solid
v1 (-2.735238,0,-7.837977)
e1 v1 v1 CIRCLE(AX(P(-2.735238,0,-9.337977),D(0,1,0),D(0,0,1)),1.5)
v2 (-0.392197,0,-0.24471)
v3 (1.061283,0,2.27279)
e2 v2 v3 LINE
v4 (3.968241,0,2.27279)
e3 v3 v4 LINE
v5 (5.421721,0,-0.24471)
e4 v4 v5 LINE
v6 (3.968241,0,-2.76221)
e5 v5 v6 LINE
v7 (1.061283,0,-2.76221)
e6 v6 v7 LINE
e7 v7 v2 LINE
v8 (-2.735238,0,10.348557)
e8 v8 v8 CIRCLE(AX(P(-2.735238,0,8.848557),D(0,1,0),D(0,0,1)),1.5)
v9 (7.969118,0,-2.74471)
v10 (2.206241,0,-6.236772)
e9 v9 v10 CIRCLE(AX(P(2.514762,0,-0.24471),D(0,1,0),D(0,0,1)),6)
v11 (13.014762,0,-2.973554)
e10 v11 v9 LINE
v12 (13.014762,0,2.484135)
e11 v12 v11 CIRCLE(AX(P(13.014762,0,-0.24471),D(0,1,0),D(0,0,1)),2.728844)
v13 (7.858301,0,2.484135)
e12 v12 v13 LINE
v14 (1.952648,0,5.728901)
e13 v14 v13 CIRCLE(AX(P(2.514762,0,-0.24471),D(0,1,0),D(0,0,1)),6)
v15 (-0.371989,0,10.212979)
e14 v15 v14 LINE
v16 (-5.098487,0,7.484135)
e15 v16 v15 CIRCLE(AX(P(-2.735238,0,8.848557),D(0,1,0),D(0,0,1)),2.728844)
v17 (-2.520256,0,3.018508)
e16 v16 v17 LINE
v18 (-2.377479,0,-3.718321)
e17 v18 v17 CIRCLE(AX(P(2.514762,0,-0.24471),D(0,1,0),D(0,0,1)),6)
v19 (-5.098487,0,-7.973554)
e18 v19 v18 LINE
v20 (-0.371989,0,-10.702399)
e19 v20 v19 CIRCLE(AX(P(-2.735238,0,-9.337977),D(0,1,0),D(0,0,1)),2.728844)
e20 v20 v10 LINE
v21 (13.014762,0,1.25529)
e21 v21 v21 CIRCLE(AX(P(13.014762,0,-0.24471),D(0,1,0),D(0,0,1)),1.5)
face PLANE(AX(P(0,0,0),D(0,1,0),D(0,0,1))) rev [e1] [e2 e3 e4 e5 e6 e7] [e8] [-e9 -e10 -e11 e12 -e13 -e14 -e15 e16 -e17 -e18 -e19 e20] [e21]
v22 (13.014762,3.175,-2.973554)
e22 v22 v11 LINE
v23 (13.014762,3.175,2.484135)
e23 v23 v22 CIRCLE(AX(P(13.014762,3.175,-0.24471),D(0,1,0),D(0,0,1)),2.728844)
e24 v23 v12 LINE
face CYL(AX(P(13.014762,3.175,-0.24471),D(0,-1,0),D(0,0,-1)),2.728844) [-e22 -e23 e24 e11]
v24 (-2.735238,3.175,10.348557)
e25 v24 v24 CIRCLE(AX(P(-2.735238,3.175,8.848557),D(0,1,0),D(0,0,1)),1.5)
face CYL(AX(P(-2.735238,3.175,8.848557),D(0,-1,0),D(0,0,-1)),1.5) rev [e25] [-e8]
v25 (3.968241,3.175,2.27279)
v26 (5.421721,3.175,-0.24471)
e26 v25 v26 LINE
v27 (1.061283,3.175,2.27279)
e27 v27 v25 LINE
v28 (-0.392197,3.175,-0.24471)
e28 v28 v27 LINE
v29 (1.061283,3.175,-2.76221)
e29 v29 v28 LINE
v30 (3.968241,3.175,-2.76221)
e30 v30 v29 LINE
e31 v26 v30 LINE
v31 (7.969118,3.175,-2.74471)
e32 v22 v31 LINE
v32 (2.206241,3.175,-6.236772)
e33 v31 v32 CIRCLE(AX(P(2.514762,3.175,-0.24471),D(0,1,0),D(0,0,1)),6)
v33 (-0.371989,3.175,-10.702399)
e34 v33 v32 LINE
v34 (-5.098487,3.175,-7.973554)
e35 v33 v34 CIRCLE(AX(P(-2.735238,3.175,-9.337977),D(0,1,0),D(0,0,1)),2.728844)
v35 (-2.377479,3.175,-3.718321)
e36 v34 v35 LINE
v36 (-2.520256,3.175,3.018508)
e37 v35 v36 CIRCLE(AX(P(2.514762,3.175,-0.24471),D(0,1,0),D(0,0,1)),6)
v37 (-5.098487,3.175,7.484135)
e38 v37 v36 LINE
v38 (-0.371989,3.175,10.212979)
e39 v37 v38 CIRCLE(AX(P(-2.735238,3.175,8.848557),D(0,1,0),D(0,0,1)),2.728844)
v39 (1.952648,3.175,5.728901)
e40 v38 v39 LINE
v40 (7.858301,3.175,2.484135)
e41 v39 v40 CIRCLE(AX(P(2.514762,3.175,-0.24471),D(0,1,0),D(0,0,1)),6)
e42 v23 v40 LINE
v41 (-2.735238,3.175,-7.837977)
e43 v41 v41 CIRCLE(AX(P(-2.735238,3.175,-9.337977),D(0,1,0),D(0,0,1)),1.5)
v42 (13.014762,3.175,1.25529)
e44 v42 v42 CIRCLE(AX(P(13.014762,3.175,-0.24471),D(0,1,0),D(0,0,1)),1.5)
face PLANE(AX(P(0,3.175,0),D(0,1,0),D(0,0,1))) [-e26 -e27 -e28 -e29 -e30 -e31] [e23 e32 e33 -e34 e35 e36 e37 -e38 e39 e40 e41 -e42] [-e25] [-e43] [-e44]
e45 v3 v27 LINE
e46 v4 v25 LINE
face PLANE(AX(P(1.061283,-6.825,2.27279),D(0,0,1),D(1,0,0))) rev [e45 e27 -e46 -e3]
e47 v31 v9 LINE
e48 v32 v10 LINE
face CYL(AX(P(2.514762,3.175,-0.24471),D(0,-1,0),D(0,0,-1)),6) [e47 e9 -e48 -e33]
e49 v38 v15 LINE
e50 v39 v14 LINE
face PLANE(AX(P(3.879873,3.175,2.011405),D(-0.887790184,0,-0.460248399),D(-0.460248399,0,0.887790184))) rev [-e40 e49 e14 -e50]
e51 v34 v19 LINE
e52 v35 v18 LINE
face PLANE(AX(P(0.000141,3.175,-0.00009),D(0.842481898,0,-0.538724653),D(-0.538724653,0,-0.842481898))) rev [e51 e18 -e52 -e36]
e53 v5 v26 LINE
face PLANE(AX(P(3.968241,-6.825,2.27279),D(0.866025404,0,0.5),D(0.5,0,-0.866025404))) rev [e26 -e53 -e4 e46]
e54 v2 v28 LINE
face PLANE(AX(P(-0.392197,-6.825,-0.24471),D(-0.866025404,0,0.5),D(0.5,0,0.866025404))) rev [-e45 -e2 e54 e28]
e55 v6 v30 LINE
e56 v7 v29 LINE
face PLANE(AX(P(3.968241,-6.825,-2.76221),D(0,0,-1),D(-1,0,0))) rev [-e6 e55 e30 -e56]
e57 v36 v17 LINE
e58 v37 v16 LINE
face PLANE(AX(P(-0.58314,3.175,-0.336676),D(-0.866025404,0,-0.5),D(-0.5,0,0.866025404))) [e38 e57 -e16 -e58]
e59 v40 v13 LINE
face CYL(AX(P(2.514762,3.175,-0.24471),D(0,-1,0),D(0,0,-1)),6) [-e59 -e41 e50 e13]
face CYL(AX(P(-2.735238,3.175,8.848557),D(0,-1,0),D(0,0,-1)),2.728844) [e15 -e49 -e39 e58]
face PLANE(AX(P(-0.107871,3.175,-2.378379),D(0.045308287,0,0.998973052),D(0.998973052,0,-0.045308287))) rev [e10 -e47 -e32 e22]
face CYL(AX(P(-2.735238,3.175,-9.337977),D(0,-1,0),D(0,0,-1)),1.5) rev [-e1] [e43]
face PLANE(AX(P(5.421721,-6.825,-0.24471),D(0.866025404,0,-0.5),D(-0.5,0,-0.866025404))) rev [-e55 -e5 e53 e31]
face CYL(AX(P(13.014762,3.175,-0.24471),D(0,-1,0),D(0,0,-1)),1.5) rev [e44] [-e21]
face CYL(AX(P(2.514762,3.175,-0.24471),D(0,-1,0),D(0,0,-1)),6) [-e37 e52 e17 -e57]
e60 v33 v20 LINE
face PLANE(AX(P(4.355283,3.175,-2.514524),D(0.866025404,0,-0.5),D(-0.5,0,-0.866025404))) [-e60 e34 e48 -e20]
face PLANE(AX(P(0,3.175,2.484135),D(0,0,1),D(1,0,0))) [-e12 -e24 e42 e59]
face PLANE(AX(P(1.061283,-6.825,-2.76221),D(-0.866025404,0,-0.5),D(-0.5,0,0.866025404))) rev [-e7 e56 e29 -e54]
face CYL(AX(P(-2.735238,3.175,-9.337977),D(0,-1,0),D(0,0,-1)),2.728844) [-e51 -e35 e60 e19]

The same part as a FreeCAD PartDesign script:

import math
import FreeCAD as App
import Part
import Sketcher

V = App.Vector
Q = App.Units.Quantity


def add_polygon(sketch, points):
    """Adds a closed chain of lines whose ends are joined by coincident constraints."""
    first, n = sketch.GeometryCount, len(points)
    for a, b in zip(points, points[1:] + points[:1]):
        sketch.addGeometry(Part.LineSegment(App.Vector(*a, 0), App.Vector(*b, 0)), False)
    for i in range(n):
        sketch.addConstraint(Sketcher.Constraint("Coincident", first + i, 2, first + (i + 1) % n, 1))

doc = App.newDocument("Part")
body = doc.addObject("PartDesign::Body", "Body")

sketch1 = body.newObject("Sketcher::SketchObject", "Sketch")
sketch1.AttachmentSupport = (doc.getObject("XZ_Plane"), [""])
sketch1.MapMode = "FlatFace"
sketch1.addGeometry(Part.LineSegment(V(7.9, 2.5, 0), V(13, 2.5, 0)), False)
sketch1.addGeometry(Part.ArcOfCircle(Part.Circle(V(13, -0.2, 0), V(0, 0, 1), 2.7), math.radians(-90), math.radians(90)), False)
sketch1.addGeometry(Part.LineSegment(V(13, -3, 0), V(8, -2.7, 0)), False)
sketch1.addGeometry(Part.ArcOfCircle(Part.Circle(V(2.5, -0.2, 0), V(0, 0, 1), 6), math.radians(-93), math.radians(-25)), False)
sketch1.addGeometry(Part.LineSegment(V(2.2, -6.2, 0), V(-0.4, -10.7, 0)), False)
sketch1.addGeometry(Part.ArcOfCircle(Part.Circle(V(-2.7, -9.3, 0), V(0, 0, 1), 2.7), math.radians(150), math.radians(330)), False)
sketch1.addGeometry(Part.LineSegment(V(-5.1, -8, 0), V(-2.4, -3.7, 0)), False)
sketch1.addGeometry(Part.ArcOfCircle(Part.Circle(V(2.5, -0.2, 0), V(0, 0, 1), 6), math.radians(147), math.radians(215)), False)
sketch1.addGeometry(Part.LineSegment(V(-2.5, 3, 0), V(-5.1, 7.5, 0)), False)
sketch1.addGeometry(Part.ArcOfCircle(Part.Circle(V(-2.7, 8.8, 0), V(0, 0, 1), 2.7), math.radians(30), math.radians(210)), False)
sketch1.addGeometry(Part.LineSegment(V(-0.4, 10.2, 0), V(2, 5.7, 0)), False)
sketch1.addGeometry(Part.ArcOfCircle(Part.Circle(V(2.5, -0.2, 0), V(0, 0, 1), 6), math.radians(27), math.radians(95)), False)
sketch1.addGeometry(Part.Circle(V(-2.7, 8.8, 0), V(0, 0, 1), 1.5), False)
add_polygon(sketch1, [(1.1, -2.8), (4, -2.8), (5.4, -0.2), (4, 2.3), (1.1, 2.3), (-0.4, -0.2)])
sketch1.addGeometry(Part.Circle(V(-2.7, -9.3, 0), V(0, 0, 1), 1.5), False)
sketch1.addGeometry(Part.Circle(V(13, -0.2, 0), V(0, 0, 1), 1.5), False)
sketch1.addConstraint(Sketcher.Constraint("Tangent", 0, 2, 1, 2))
sketch1.addConstraint(Sketcher.Constraint("Coincident", 1, 1, 2, 1))
sketch1.addConstraint(Sketcher.Constraint("Coincident", 2, 2, 3, 2))
sketch1.addConstraint(Sketcher.Constraint("Coincident", 3, 1, 4, 1))
sketch1.addConstraint(Sketcher.Constraint("Tangent", 4, 2, 5, 2))
sketch1.addConstraint(Sketcher.Constraint("Coincident", 5, 1, 6, 1))
sketch1.addConstraint(Sketcher.Constraint("Coincident", 6, 2, 7, 2))
sketch1.addConstraint(Sketcher.Constraint("Coincident", 7, 1, 8, 1))
sketch1.addConstraint(Sketcher.Constraint("Tangent", 8, 2, 9, 2))
sketch1.addConstraint(Sketcher.Constraint("Coincident", 9, 1, 10, 1))
sketch1.addConstraint(Sketcher.Constraint("Coincident", 10, 2, 11, 2))
sketch1.addConstraint(Sketcher.Constraint("Coincident", 11, 1, 0, 1))
sketch1.addConstraint(Sketcher.Constraint("Horizontal", 0))
sketch1.addConstraint(Sketcher.Constraint("Horizontal", 13))
sketch1.addConstraint(Sketcher.Constraint("Horizontal", 16))
sketch1.addConstraint(Sketcher.Constraint("Coincident", 7, 3, 3, 3))
sketch1.addConstraint(Sketcher.Constraint("Coincident", 11, 3, 3, 3))
sketch1.addConstraint(Sketcher.Constraint("Coincident", 12, 3, 9, 3))
sketch1.addConstraint(Sketcher.Constraint("Coincident", 19, 3, 5, 3))
sketch1.addConstraint(Sketcher.Constraint("Coincident", 20, 3, 1, 3))
sketch1.addConstraint(Sketcher.Constraint("Equal", 1, 5))
sketch1.addConstraint(Sketcher.Constraint("Equal", 3, 7))
sketch1.addConstraint(Sketcher.Constraint("Equal", 5, 9))
sketch1.addConstraint(Sketcher.Constraint("Equal", 7, 11))
sketch1.addConstraint(Sketcher.Constraint("Equal", 12, 19))
sketch1.addConstraint(Sketcher.Constraint("Equal", 19, 20))
sketch1.addConstraint(Sketcher.Constraint("Parallel", 4, 14))
sketch1.addConstraint(Sketcher.Constraint("Parallel", 8, 15))
sketch1.addConstraint(Sketcher.Constraint("Parallel", 14, 17))
sketch1.addConstraint(Sketcher.Constraint("Parallel", 15, 18))
sketch1.addConstraint(Sketcher.Constraint("Horizontal", 1, 3, 3, 3))
sketch1.addConstraint(Sketcher.Constraint("Horizontal", 20, 3, 14, 2))
sketch1.addConstraint(Sketcher.Constraint("Horizontal", 14, 2, 17, 2))
sketch1.addConstraint(Sketcher.Constraint("Vertical", 5, 3, 9, 3))
sketch1.addConstraint(Sketcher.Constraint("Vertical", 0, 2, 1, 1))
sketch1.addConstraint(Sketcher.Constraint("Vertical", 5, 1, 8, 2))
sketch1.addConstraint(Sketcher.Constraint("Vertical", 4, 2, 9, 1))
sketch1.addConstraint(Sketcher.Constraint("Vertical", 13, 2, 15, 2))
sketch1.addConstraint(Sketcher.Constraint("Vertical", 16, 2, 18, 2))
sketch1.addConstraint(Sketcher.Constraint("Equal", 2, 6))
sketch1.addConstraint(Sketcher.Constraint("Equal", 4, 8))
sketch1.addConstraint(Sketcher.Constraint("Equal", 6, 10))
sketch1.addConstraint(Sketcher.Constraint("Diameter", 12, Q("3 mm")))
sketch1.addConstraint(Sketcher.Constraint("Radius", 3, Q("6 mm")))
sketch1.addConstraint(Sketcher.Constraint("Angle", 4, Q("-120 deg")))
sketch1.addConstraint(Sketcher.Constraint("DistanceX", 3, 3, 1, 3, Q("10.5 mm")))
sketch1.addConstraint(Sketcher.Constraint("DistanceY", 2, 2, 1, 3, Q("2.5 mm")))
sketch1.addConstraint(Sketcher.Constraint("DistanceX", 5, 3, 3, 3, Q("5.25 mm")))
sketch1.addConstraint(Sketcher.Constraint("Radius", 1, Q("2.728844 mm")))
sketch1.addConstraint(Sketcher.Constraint("DistanceY", 4, 2, -1, 1, Q("10.702399 mm")))
sketch1.addConstraint(Sketcher.Constraint("DistanceY", -1, 1, 10, 2, Q("5.728901 mm")))
sketch1.addConstraint(Sketcher.Constraint("DistanceX", -1, 1, 11, 1, Q("7.858301 mm")))
sketch1.addConstraint(Sketcher.Constraint("DistanceY", 13, 2, 3, 3, Q("2.5125 mm")))
sketch1.addConstraint(Sketcher.Constraint("DistanceX", 13, 1, 13, 2, Q("2.901185 mm")))
sketch1.addConstraint(Sketcher.Constraint("DistanceX", -1, 1, 16, 2, Q("1.064169 mm")))
pad1 = body.newObject("PartDesign::Pad", "Pad")
pad1.Profile = sketch1
pad1.Length = 3.175
pad1.Reversed = True

sketch2 = body.newObject("Sketcher::SketchObject", "Sketch001")
sketch2.AttachmentSupport = (doc.getObject("XZ_Plane"), [""])
sketch2.MapMode = "FlatFace"
sketch2.AttachmentOffset = App.Placement(V(0, 0, -3.175), App.Rotation())
add_polygon(sketch2, [(5.4, -0.2), (4, -2.8), (1.1, -2.8), (-0.4, -0.2), (1.1, 2.3), (4, 2.3)])
sketch2.addConstraint(Sketcher.Constraint("Horizontal", 1))
sketch2.addConstraint(Sketcher.Constraint("Horizontal", 4))
sketch2.addConstraint(Sketcher.Constraint("Parallel", 0, 3))
sketch2.addConstraint(Sketcher.Constraint("Parallel", 2, 5))
sketch2.addConstraint(Sketcher.Constraint("Horizontal", 2, 2, 5, 2))
sketch2.addConstraint(Sketcher.Constraint("Vertical", 1, 2, 3, 2))
sketch2.addConstraint(Sketcher.Constraint("Vertical", 0, 2, 4, 2))
sketch2.addConstraint(Sketcher.Constraint("Angle", 0, Q("-120 deg")))
sketch2.addConstraint(Sketcher.Constraint("DistanceY", 1, 2, 3, 2, Q("5.035 mm")))
sketch2.addConstraint(Sketcher.Constraint("DistanceX", 1, 2, 1, 1, Q("2.906959 mm")))
sketch2.addConstraint(Sketcher.Constraint("DistanceX", -1, 1, 0, 2, Q("3.968241 mm")))
sketch2.addConstraint(Sketcher.Constraint("DistanceY", 0, 2, -1, 1, Q("2.76221 mm")))
pocket1 = body.newObject("PartDesign::Pocket", "Pocket")
pocket1.Profile = sketch2
pocket1.Length = 10
pocket1.Reversed = True

doc.recompute()
